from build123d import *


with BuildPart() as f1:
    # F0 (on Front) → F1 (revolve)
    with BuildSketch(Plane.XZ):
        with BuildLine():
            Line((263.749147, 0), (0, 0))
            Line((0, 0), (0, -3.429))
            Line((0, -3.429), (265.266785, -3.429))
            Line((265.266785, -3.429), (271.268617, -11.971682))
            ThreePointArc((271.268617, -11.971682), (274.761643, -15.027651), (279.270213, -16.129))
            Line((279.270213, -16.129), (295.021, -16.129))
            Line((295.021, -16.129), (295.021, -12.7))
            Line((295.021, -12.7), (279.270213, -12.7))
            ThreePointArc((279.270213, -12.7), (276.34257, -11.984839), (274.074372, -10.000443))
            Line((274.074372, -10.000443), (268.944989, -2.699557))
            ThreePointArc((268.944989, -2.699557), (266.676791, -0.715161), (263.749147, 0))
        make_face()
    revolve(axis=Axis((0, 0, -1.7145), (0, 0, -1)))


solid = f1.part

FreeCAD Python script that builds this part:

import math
import FreeCAD as App
import Part
import Sketcher
from FreeCAD import Vector
Q = App.Units.Quantity

doc = App.newDocument("Part")
params = doc.addObject("Spreadsheet::Sheet", "Params")
for row, (alias, value) in enumerate([
    ("sketch1_radius", "0.2499999 in"),
    ("sketch1_height", "0.135 in"),
    ("revolution_angle", "360 deg"),
], start=1):
    params.set(f"A{row}", alias)
    params.set(f"B{row}", "=" + value)
    params.setAlias(f"B{row}", alias)

body = doc.addObject("PartDesign::Body", "Body")

# Sketch on XZ plane
sketch1 = body.newObject("Sketcher::SketchObject", "Sketch")
sketch1.AttachmentSupport = (doc.getObject("XZ_Plane"), [""])
sketch1.MapMode = "FlatFace"
sketch1.addGeometry(Part.LineSegment(Vector(263.7, 0, 0), Vector(0, 0, 0)), False)
sketch1.addGeometry(Part.LineSegment(Vector(0, 0, 0), Vector(0, -3.4, 0)), False)
sketch1.addGeometry(Part.LineSegment(Vector(0, -3.4, 0), Vector(265.3, -3.4, 0)), False)
sketch1.addGeometry(Part.LineSegment(Vector(265.3, -3.4, 0), Vector(271.3, -12, 0)), False)
sketch1.addGeometry(Part.ArcOfCircle(Part.Circle(Vector(279.3, -6.3, 0), Vector(0, 0, 1), 9.8), math.radians(-145), math.radians(-90)), False)
sketch1.addGeometry(Part.LineSegment(Vector(279.3, -16.1, 0), Vector(295, -16.1, 0)), False)
sketch1.addGeometry(Part.LineSegment(Vector(295, -16.1, 0), Vector(295, -12.7, 0)), False)
sketch1.addGeometry(Part.LineSegment(Vector(295, -12.7, 0), Vector(279.3, -12.7, 0)), False)
sketch1.addGeometry(Part.ArcOfCircle(Part.Circle(Vector(279.3, -6.4, 0), Vector(0, 0, 1), 6.3), math.radians(-145), math.radians(-90)), False)
sketch1.addGeometry(Part.LineSegment(Vector(274.1, -10, 0), Vector(268.9, -2.7, 0)), False)
sketch1.addGeometry(Part.ArcOfCircle(Part.Circle(Vector(263.7, -6.3, 0), Vector(0, 0, 1), 6.3), math.radians(35), math.radians(90)), False)
sketch1.addConstraint(Sketcher.Constraint("Coincident", 0, 2, 1, 1))
sketch1.addConstraint(Sketcher.Constraint("Coincident", 1, 2, 2, 1))
sketch1.addConstraint(Sketcher.Constraint("Coincident", 2, 2, 3, 1))
sketch1.addConstraint(Sketcher.Constraint("Tangent", 3, 2, 4, 1))
sketch1.addConstraint(Sketcher.Constraint("Tangent", 4, 2, 5, 1))
sketch1.addConstraint(Sketcher.Constraint("Coincident", 5, 2, 6, 1))
sketch1.addConstraint(Sketcher.Constraint("Coincident", 6, 2, 7, 1))
sketch1.addConstraint(Sketcher.Constraint("Tangent", 7, 2, 8, 2))
sketch1.addConstraint(Sketcher.Constraint("Tangent", 8, 1, 9, 1))
sketch1.addConstraint(Sketcher.Constraint("Tangent", 9, 2, 10, 1))
sketch1.addConstraint(Sketcher.Constraint("Tangent", 10, 2, 0, 1))
sketch1.addConstraint(Sketcher.Constraint("Horizontal", 0))
sketch1.addConstraint(Sketcher.Constraint("Vertical", 1))
sketch1.addConstraint(Sketcher.Constraint("Horizontal", 2))
sketch1.addConstraint(Sketcher.Constraint("Horizontal", 5))
sketch1.addConstraint(Sketcher.Constraint("Vertical", 6))
sketch1.addConstraint(Sketcher.Constraint("Horizontal", 7))
sketch1.addConstraint(Sketcher.Constraint("Coincident", 0, 2, -1, 1))
sketch1.addConstraint(Sketcher.Constraint("Coincident", 8, 3, 4, 3))
sketch1.addConstraint(Sketcher.Constraint("Equal", 8, 10))
sketch1.addConstraint(Sketcher.Constraint("Parallel", 3, 9))
sketch1.addConstraint(Sketcher.Constraint("Equal", 1, 6))
sketch1.addConstraint(Sketcher.Constraint("Radius", 8, Q("0.2499999 in")))
sketch1.addConstraint(Sketcher.Constraint("DistanceY", 6, 2, -1, 1, Q("0.5 in")))
sketch1.addConstraint(Sketcher.Constraint("DistanceY", 1, 2, 1, 1, Q("0.135 in")))
sketch1.addConstraint(Sketcher.Constraint("DistanceX", -1, 1, 5, 2, Q("11.615 in")))
sketch1.addConstraint(Sketcher.Constraint("DistanceX", 3, 2, 4, 3, Q("8.001599 mm")))
sketch1.addConstraint(Sketcher.Constraint("DistanceX", 0, 2, 0, 1, Q("263.749147 mm")))
sketch1.setExpression("Constraints[22]", "Params.sketch1_radius")
sketch1.setExpression("Constraints[24]", "Params.sketch1_height")
revolution = body.newObject("PartDesign::Revolution", "Revolution")
revolution.Profile = sketch1
revolution.ReferenceAxis = (sketch1, ["V_Axis"])
revolution.setExpression("Angle", "Params.revolution_angle")

doc.recompute()
